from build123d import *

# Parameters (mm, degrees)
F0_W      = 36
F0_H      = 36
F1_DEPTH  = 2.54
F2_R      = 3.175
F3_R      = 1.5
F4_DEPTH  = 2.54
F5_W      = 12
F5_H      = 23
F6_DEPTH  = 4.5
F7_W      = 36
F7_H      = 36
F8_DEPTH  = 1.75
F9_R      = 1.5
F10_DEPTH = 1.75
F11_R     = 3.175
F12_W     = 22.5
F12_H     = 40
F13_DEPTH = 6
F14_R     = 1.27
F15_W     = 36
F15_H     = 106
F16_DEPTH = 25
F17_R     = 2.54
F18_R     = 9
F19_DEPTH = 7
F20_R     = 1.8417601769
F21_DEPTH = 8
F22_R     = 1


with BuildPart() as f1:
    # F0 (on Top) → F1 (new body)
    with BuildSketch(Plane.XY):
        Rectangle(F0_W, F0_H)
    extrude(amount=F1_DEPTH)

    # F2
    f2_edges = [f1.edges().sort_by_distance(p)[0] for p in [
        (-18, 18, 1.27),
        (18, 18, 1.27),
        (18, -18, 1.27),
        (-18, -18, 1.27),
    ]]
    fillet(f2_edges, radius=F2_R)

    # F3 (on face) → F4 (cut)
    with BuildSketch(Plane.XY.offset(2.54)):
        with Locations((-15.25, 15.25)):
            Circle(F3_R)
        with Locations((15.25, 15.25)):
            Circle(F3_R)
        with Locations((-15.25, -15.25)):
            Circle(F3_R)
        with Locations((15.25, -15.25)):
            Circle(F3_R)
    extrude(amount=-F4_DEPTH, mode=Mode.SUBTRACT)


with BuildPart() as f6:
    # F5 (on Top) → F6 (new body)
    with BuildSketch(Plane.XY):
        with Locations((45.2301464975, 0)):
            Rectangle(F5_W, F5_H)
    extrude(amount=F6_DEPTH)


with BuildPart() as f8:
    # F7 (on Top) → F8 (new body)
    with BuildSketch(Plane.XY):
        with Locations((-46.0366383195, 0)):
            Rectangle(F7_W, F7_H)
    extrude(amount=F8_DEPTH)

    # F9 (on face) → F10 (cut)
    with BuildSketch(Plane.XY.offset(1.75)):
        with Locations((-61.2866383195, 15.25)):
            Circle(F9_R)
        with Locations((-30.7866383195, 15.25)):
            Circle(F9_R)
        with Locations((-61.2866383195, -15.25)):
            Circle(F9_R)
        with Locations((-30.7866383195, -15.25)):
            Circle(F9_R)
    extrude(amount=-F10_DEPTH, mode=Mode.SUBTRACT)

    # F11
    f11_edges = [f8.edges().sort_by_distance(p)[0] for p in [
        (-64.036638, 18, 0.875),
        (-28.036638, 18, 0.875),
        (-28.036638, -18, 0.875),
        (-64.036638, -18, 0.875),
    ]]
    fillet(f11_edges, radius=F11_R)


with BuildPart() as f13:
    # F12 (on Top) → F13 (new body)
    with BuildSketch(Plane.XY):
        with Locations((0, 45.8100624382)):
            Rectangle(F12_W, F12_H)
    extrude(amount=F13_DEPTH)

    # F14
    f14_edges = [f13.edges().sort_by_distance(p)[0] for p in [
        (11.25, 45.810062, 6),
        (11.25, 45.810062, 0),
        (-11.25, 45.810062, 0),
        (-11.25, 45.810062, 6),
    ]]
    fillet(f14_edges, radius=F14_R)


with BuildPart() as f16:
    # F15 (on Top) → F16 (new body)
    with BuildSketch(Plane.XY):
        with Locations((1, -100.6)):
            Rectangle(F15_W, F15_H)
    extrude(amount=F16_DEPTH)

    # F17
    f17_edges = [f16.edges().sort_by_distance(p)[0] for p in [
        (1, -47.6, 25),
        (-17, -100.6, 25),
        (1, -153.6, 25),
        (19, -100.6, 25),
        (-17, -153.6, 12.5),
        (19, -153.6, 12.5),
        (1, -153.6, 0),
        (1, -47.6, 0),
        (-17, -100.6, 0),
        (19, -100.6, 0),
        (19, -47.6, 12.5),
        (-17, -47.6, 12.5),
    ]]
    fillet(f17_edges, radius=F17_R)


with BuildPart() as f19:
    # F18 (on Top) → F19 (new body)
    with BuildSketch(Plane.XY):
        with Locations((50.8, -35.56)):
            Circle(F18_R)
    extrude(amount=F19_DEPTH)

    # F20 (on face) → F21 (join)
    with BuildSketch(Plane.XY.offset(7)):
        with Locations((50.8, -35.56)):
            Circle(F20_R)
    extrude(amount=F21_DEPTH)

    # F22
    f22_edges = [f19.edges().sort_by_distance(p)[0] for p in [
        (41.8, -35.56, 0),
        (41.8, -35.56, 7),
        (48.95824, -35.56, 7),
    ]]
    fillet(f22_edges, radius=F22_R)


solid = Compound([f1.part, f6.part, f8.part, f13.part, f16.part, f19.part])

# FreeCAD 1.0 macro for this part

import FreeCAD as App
import Part
import Sketcher
from FreeCAD import Vector
Q = App.Units.Quantity


def edges_at(feature, points):
    """Names of the edges that pass closest to the given points."""
    edges = feature.Shape.Edges
    near = lambda p: min(range(len(edges)), key=lambda i: edges[i].distToShape(Part.Vertex(*p))[0])
    return sorted({f"Edge{near(p) + 1}" for p in points})

doc = App.newDocument("Part")
body = doc.addObject("PartDesign::Body", "Body")

# Sketch on XY plane
sketch1 = body.newObject("Sketcher::SketchObject", "Sketch")
sketch1.AttachmentSupport = (doc.getObject("XY_Plane"), [""])
sketch1.MapMode = "FlatFace"
sketch1.addGeometry([
    Part.LineSegment(Vector(-18, 18, 0), Vector(-18, -18, 0)),
    Part.LineSegment(Vector(-18, -18, 0), Vector(18, -18, 0)),
    Part.LineSegment(Vector(18, -18, 0), Vector(18, 18, 0)),
    Part.LineSegment(Vector(18, 18, 0), Vector(-18, 18, 0)),
], False)
sketch1.addConstraint([
    Sketcher.Constraint("Coincident", 0, 2, 1, 1),
    Sketcher.Constraint("Coincident", 1, 2, 2, 1),
    Sketcher.Constraint("Coincident", 2, 2, 3, 1),
    Sketcher.Constraint("Coincident", 3, 2, 0, 1),
    Sketcher.Constraint("Vertical", 0),
    Sketcher.Constraint("Horizontal", 1),
    Sketcher.Constraint("Vertical", 2),
    Sketcher.Constraint("Horizontal", 3),
    Sketcher.Constraint("Symmetric", 0, 2, 2, 2, -1, 1),
    Sketcher.Constraint("Equal", 3, 0),
    Sketcher.Constraint("DistanceX", 1, 1, 1, 2, Q("36 mm")),
])
pad1 = body.newObject("PartDesign::Pad", "Pad")
pad1.Profile = sketch1
pad1.Length = 2.54
doc.recompute()

fillet = body.newObject("PartDesign::Fillet", "Fillet")
fillet.Base = (pad1, edges_at(pad1, [
    (-18, 18, 1.27),
    (18, 18, 1.27),
    (18, -18, 1.27),
    (-18, -18, 1.27),
]))
fillet.Radius = 3.175

# Sketch on XY plane
sketch2 = body.newObject("Sketcher::SketchObject", "Sketch001")
sketch2.AttachmentSupport = (doc.getObject("XY_Plane"), [""])
sketch2.MapMode = "FlatFace"
sketch2.AttachmentOffset = App.Placement(Vector(0, 0, 2.54), App.Rotation())
sketch2.addGeometry([
    Part.Circle(Vector(-15.2, 15.2, 0), Vector(0, 0, 1), 1.5),
    Part.Circle(Vector(15.2, 15.2, 0), Vector(0, 0, 1), 1.5),
    Part.Circle(Vector(-15.2, -15.2, 0), Vector(0, 0, 1), 1.5),
    Part.Circle(Vector(15.2, -15.2, 0), Vector(0, 0, 1), 1.5),
], False)
sketch2.addConstraint([
    Sketcher.Constraint("Equal", 0, 1),
    Sketcher.Constraint("Equal", 1, 2),
    Sketcher.Constraint("Equal", 2, 3),
    Sketcher.Constraint("Symmetric", 1, 3, 2, 3, -1, 1),
    Sketcher.Constraint("Symmetric", 0, 3, 3, 3, -1, 1),
    Sketcher.Constraint("Symmetric", 0, 3, 1, 3, -2),
    Sketcher.Constraint("Diameter", 0, Q("3 mm")),
    Sketcher.Constraint("DistanceX", 0, 3, 1, 3, Q("30.5 mm")),
    Sketcher.Constraint("DistanceY", 2, 3, 0, 3, Q("30.5 mm")),
])
pocket1 = body.newObject("PartDesign::Pocket", "Pocket")
pocket1.Profile = sketch2
pocket1.Length = 2.54
body2 = doc.addObject("PartDesign::Body", "Body001")

# Sketch on XY plane
sketch3 = body2.newObject("Sketcher::SketchObject", "Sketch002")
sketch3.AttachmentSupport = (doc.getObject("XY_Plane001"), [""])
sketch3.MapMode = "FlatFace"
sketch3.addGeometry([
    Part.LineSegment(Vector(39, 12, 0), Vector(39, -12, 0)),
    Part.LineSegment(Vector(39, -12, 0), Vector(51, -12, 0)),
    Part.LineSegment(Vector(51, -12, 0), Vector(51, 12, 0)),
    Part.LineSegment(Vector(51, 12, 0), Vector(39, 12, 0)),
], False)
sketch3.addConstraint([
    Sketcher.Constraint("Coincident", 0, 2, 1, 1),
    Sketcher.Constraint("Coincident", 1, 2, 2, 1),
    Sketcher.Constraint("Coincident", 2, 2, 3, 1),
    Sketcher.Constraint("Coincident", 3, 2, 0, 1),
    Sketcher.Constraint("Vertical", 0),
    Sketcher.Constraint("Horizontal", 1),
    Sketcher.Constraint("Vertical", 2),
    Sketcher.Constraint("Horizontal", 3),
    Sketcher.Constraint("DistanceX", 1, 1, 1, 2, Q("12 mm")),
    Sketcher.Constraint("DistanceY", 0, 2, 0, 1, Q("23 mm")),
    Sketcher.Constraint("DistanceY", 0, 2, -1, 1, Q("11.5 mm")),
    Sketcher.Constraint("DistanceX", -1, 1, 0, 2, Q("39.230146 mm")),
])
pad2 = body2.newObject("PartDesign::Pad", "Pad001")
pad2.Profile = sketch3
pad2.Length = 4.5
body3 = doc.addObject("PartDesign::Body", "Body002")

# Sketch on XY plane
sketch4 = body3.newObject("Sketcher::SketchObject", "Sketch003")
sketch4.AttachmentSupport = (doc.getObject("XY_Plane002"), [""])
sketch4.MapMode = "FlatFace"
sketch4.addGeometry([
    Part.LineSegment(Vector(-64, 18, 0), Vector(-64, -18, 0)),
    Part.LineSegment(Vector(-64, -18, 0), Vector(-28, -18, 0)),
    Part.LineSegment(Vector(-28, -18, 0), Vector(-28, 18, 0)),
    Part.LineSegment(Vector(-28, 18, 0), Vector(-64, 18, 0)),
], False)
sketch4.addConstraint([
    Sketcher.Constraint("Coincident", 0, 2, 1, 1),
    Sketcher.Constraint("Coincident", 1, 2, 2, 1),
    Sketcher.Constraint("Coincident", 2, 2, 3, 1),
    Sketcher.Constraint("Coincident", 3, 2, 0, 1),
    Sketcher.Constraint("Vertical", 0),
    Sketcher.Constraint("Horizontal", 1),
    Sketcher.Constraint("Vertical", 2),
    Sketcher.Constraint("Horizontal", 3),
    Sketcher.Constraint("Equal", 3, 0),
    Sketcher.Constraint("DistanceX", 1, 1, 1, 2, Q("36 mm")),
    Sketcher.Constraint("DistanceY", 0, 2, -1, 1, Q("18 mm")),
    Sketcher.Constraint("DistanceX", 0, 2, -1, 1, Q("64.036638 mm")),
])
pad3 = body3.newObject("PartDesign::Pad", "Pad002")
pad3.Profile = sketch4
pad3.Length = 1.75

# Sketch on XY plane
sketch5 = body3.newObject("Sketcher::SketchObject", "Sketch004")
sketch5.AttachmentSupport = (doc.getObject("XY_Plane002"), [""])
sketch5.MapMode = "FlatFace"
sketch5.AttachmentOffset = App.Placement(Vector(0, 0, 1.75), App.Rotation())
sketch5.addGeometry([
    Part.Circle(Vector(-61.3, 15.2, 0), Vector(0, 0, 1), 1.5),
    Part.Circle(Vector(-30.8, 15.2, 0), Vector(0, 0, 1), 1.5),
    Part.Circle(Vector(-61.3, -15.2, 0), Vector(0, 0, 1), 1.5),
    Part.Circle(Vector(-30.8, -15.2, 0), Vector(0, 0, 1), 1.5),
], False)
sketch5.addConstraint([
    Sketcher.Constraint("Equal", 0, 1),
    Sketcher.Constraint("Equal", 1, 2),
    Sketcher.Constraint("Equal", 2, 3),
    Sketcher.Constraint("Symmetric", 0, 3, 2, 3, -1),
    Sketcher.Constraint("Symmetric", 1, 3, 3, 3, -1),
    Sketcher.Constraint("Horizontal", 0, 3, 1, 3),
    Sketcher.Constraint("Diameter", 0, Q("3 mm")),
    Sketcher.Constraint("DistanceX", 0, 3, 1, 3, Q("30.5 mm")),
    Sketcher.Constraint("DistanceY", 2, 3, 0, 3, Q("30.5 mm")),
    Sketcher.Constraint("DistanceX", 0, 3, -1, 1, Q("61.286638 mm")),
])
pocket2 = body3.newObject("PartDesign::Pocket", "Pocket001")
pocket2.Profile = sketch5
pocket2.Length = 1.75
doc.recompute()

fillet2 = body3.newObject("PartDesign::Fillet", "Fillet001")
fillet2.Base = (pocket2, edges_at(pocket2, [
    (-64.037, 18, 0.875),
    (-28.037, 18, 0.875),
    (-28.037, -18, 0.875),
    (-64.037, -18, 0.875),
]))
fillet2.Radius = 3.175
body4 = doc.addObject("PartDesign::Body", "Body003")

# Sketch on XY plane
sketch6 = body4.newObject("Sketcher::SketchObject", "Sketch005")
sketch6.AttachmentSupport = (doc.getObject("XY_Plane003"), [""])
sketch6.MapMode = "FlatFace"
sketch6.addGeometry([
    Part.LineSegment(Vector(-11, 66, 0), Vector(-11, 26, 0)),
    Part.LineSegment(Vector(-11, 26, 0), Vector(11, 26, 0)),
    Part.LineSegment(Vector(11, 26, 0), Vector(11, 66, 0)),
    Part.LineSegment(Vector(11, 66, 0), Vector(-11, 66, 0)),
], False)
sketch6.addConstraint([
    Sketcher.Constraint("Coincident", 0, 2, 1, 1),
    Sketcher.Constraint("Coincident", 1, 2, 2, 1),
    Sketcher.Constraint("Coincident", 2, 2, 3, 1),
    Sketcher.Constraint("Coincident", 3, 2, 0, 1),
    Sketcher.Constraint("Vertical", 0),
    Sketcher.Constraint("Horizontal", 1),
    Sketcher.Constraint("Vertical", 2),
    Sketcher.Constraint("Horizontal", 3),
    Sketcher.Constraint("DistanceY", 0, 2, 0, 1, Q("40 mm")),
    Sketcher.Constraint("DistanceX", 1, 1, 1, 2, Q("22.5 mm")),
    Sketcher.Constraint("DistanceX", 0, 2, -1, 1, Q("11.25 mm")),
    Sketcher.Constraint("DistanceY", -1, 1, 0, 2, Q("25.810062 mm")),
])
pad4 = body4.newObject("PartDesign::Pad", "Pad003")
pad4.Profile = sketch6
pad4.Length = 6
doc.recompute()

fillet3 = body4.newObject("PartDesign::Fillet", "Fillet002")
fillet3.Base = (pad4, edges_at(pad4, [
    (11.25, 45.81, 6),
    (11.25, 45.81, 0),
    (-11.25, 45.81, 0),
    (-11.25, 45.81, 6),
]))
fillet3.Radius = 1.27
body5 = doc.addObject("PartDesign::Body", "Body004")

# Sketch on XY plane
sketch7 = body5.newObject("Sketcher::SketchObject", "Sketch006")
sketch7.AttachmentSupport = (doc.getObject("XY_Plane004"), [""])
sketch7.MapMode = "FlatFace"
sketch7.addGeometry([
    Part.LineSegment(Vector(-17, -48, 0), Vector(-17, -154, 0)),
    Part.LineSegment(Vector(-17, -154, 0), Vector(19, -154, 0)),
    Part.LineSegment(Vector(19, -154, 0), Vector(19, -48, 0)),
    Part.LineSegment(Vector(19, -48, 0), Vector(-17, -48, 0)),
], False)
sketch7.addConstraint([
    Sketcher.Constraint("Coincident", 0, 2, 1, 1),
    Sketcher.Constraint("Coincident", 1, 2, 2, 1),
    Sketcher.Constraint("Coincident", 2, 2, 3, 1),
    Sketcher.Constraint("Coincident", 3, 2, 0, 1),
    Sketcher.Constraint("Vertical", 0),
    Sketcher.Constraint("Horizontal", 1),
    Sketcher.Constraint("Vertical", 2),
    Sketcher.Constraint("Horizontal", 3),
    Sketcher.Constraint("DistanceX", 1, 1, 1, 2, Q("36 mm")),
    Sketcher.Constraint("DistanceY", 0, 2, 0, 1, Q("106 mm")),
    Sketcher.Constraint("DistanceX", 0, 2, -1, 1, Q("17 mm")),
    Sketcher.Constraint("DistanceY", 0, 2, -1, 1, Q("153.6 mm")),
])
pad5 = body5.newObject("PartDesign::Pad", "Pad004")
pad5.Profile = sketch7
pad5.Length = 25
doc.recompute()

fillet4 = body5.newObject("PartDesign::Fillet", "Fillet003")
fillet4.Base = (pad5, ["Edge1"])
fillet4.UseAllEdges = True
fillet4.Radius = 2.54
body6 = doc.addObject("PartDesign::Body", "Body005")

# Sketch on XY plane
sketch8 = body6.newObject("Sketcher::SketchObject", "Sketch007")
sketch8.AttachmentSupport = (doc.getObject("XY_Plane005"), [""])
sketch8.MapMode = "FlatFace"
sketch8.addGeometry(Part.Circle(Vector(51, -36, 0), Vector(0, 0, 1), 9), False)
sketch8.addConstraint([
    Sketcher.Constraint("Diameter", 0, Q("18 mm")),
    Sketcher.Constraint("DistanceX", -1, 1, 0, 3, Q("50.8 mm")),
    Sketcher.Constraint("DistanceY", 0, 3, -1, 1, Q("35.56 mm")),
])
pad6 = body6.newObject("PartDesign::Pad", "Pad005")
pad6.Profile = sketch8
pad6.Length = 7

# Sketch on XY plane
sketch9 = body6.newObject("Sketcher::SketchObject", "Sketch008")
sketch9.AttachmentSupport = (doc.getObject("XY_Plane005"), [""])
sketch9.MapMode = "FlatFace"
sketch9.AttachmentOffset = App.Placement(Vector(0, 0, 7), App.Rotation())
sketch9.addGeometry(Part.Circle(Vector(50.8, -35.6, 0), Vector(0, 0, 1), 1.8), False)
sketch9.addConstraint([
    Sketcher.Constraint("DistanceX", -1, 1, 0, 3, Q("50.8 mm")),
    Sketcher.Constraint("Diameter", 0, Q("3.68352 mm")),
    Sketcher.Constraint("DistanceY", 0, 3, -1, 1, Q("35.56 mm")),
])
pad7 = body6.newObject("PartDesign::Pad", "Pad006")
pad7.Profile = sketch9
pad7.Length = 8
doc.recompute()

fillet5 = body6.newObject("PartDesign::Fillet", "Fillet004")
fillet5.Base = (pad7, edges_at(pad7, [(41.8, -35.56, 0), (41.8, -35.56, 7), (48.958, -35.56, 7)]))
fillet5.Radius = 1

doc.recompute()
